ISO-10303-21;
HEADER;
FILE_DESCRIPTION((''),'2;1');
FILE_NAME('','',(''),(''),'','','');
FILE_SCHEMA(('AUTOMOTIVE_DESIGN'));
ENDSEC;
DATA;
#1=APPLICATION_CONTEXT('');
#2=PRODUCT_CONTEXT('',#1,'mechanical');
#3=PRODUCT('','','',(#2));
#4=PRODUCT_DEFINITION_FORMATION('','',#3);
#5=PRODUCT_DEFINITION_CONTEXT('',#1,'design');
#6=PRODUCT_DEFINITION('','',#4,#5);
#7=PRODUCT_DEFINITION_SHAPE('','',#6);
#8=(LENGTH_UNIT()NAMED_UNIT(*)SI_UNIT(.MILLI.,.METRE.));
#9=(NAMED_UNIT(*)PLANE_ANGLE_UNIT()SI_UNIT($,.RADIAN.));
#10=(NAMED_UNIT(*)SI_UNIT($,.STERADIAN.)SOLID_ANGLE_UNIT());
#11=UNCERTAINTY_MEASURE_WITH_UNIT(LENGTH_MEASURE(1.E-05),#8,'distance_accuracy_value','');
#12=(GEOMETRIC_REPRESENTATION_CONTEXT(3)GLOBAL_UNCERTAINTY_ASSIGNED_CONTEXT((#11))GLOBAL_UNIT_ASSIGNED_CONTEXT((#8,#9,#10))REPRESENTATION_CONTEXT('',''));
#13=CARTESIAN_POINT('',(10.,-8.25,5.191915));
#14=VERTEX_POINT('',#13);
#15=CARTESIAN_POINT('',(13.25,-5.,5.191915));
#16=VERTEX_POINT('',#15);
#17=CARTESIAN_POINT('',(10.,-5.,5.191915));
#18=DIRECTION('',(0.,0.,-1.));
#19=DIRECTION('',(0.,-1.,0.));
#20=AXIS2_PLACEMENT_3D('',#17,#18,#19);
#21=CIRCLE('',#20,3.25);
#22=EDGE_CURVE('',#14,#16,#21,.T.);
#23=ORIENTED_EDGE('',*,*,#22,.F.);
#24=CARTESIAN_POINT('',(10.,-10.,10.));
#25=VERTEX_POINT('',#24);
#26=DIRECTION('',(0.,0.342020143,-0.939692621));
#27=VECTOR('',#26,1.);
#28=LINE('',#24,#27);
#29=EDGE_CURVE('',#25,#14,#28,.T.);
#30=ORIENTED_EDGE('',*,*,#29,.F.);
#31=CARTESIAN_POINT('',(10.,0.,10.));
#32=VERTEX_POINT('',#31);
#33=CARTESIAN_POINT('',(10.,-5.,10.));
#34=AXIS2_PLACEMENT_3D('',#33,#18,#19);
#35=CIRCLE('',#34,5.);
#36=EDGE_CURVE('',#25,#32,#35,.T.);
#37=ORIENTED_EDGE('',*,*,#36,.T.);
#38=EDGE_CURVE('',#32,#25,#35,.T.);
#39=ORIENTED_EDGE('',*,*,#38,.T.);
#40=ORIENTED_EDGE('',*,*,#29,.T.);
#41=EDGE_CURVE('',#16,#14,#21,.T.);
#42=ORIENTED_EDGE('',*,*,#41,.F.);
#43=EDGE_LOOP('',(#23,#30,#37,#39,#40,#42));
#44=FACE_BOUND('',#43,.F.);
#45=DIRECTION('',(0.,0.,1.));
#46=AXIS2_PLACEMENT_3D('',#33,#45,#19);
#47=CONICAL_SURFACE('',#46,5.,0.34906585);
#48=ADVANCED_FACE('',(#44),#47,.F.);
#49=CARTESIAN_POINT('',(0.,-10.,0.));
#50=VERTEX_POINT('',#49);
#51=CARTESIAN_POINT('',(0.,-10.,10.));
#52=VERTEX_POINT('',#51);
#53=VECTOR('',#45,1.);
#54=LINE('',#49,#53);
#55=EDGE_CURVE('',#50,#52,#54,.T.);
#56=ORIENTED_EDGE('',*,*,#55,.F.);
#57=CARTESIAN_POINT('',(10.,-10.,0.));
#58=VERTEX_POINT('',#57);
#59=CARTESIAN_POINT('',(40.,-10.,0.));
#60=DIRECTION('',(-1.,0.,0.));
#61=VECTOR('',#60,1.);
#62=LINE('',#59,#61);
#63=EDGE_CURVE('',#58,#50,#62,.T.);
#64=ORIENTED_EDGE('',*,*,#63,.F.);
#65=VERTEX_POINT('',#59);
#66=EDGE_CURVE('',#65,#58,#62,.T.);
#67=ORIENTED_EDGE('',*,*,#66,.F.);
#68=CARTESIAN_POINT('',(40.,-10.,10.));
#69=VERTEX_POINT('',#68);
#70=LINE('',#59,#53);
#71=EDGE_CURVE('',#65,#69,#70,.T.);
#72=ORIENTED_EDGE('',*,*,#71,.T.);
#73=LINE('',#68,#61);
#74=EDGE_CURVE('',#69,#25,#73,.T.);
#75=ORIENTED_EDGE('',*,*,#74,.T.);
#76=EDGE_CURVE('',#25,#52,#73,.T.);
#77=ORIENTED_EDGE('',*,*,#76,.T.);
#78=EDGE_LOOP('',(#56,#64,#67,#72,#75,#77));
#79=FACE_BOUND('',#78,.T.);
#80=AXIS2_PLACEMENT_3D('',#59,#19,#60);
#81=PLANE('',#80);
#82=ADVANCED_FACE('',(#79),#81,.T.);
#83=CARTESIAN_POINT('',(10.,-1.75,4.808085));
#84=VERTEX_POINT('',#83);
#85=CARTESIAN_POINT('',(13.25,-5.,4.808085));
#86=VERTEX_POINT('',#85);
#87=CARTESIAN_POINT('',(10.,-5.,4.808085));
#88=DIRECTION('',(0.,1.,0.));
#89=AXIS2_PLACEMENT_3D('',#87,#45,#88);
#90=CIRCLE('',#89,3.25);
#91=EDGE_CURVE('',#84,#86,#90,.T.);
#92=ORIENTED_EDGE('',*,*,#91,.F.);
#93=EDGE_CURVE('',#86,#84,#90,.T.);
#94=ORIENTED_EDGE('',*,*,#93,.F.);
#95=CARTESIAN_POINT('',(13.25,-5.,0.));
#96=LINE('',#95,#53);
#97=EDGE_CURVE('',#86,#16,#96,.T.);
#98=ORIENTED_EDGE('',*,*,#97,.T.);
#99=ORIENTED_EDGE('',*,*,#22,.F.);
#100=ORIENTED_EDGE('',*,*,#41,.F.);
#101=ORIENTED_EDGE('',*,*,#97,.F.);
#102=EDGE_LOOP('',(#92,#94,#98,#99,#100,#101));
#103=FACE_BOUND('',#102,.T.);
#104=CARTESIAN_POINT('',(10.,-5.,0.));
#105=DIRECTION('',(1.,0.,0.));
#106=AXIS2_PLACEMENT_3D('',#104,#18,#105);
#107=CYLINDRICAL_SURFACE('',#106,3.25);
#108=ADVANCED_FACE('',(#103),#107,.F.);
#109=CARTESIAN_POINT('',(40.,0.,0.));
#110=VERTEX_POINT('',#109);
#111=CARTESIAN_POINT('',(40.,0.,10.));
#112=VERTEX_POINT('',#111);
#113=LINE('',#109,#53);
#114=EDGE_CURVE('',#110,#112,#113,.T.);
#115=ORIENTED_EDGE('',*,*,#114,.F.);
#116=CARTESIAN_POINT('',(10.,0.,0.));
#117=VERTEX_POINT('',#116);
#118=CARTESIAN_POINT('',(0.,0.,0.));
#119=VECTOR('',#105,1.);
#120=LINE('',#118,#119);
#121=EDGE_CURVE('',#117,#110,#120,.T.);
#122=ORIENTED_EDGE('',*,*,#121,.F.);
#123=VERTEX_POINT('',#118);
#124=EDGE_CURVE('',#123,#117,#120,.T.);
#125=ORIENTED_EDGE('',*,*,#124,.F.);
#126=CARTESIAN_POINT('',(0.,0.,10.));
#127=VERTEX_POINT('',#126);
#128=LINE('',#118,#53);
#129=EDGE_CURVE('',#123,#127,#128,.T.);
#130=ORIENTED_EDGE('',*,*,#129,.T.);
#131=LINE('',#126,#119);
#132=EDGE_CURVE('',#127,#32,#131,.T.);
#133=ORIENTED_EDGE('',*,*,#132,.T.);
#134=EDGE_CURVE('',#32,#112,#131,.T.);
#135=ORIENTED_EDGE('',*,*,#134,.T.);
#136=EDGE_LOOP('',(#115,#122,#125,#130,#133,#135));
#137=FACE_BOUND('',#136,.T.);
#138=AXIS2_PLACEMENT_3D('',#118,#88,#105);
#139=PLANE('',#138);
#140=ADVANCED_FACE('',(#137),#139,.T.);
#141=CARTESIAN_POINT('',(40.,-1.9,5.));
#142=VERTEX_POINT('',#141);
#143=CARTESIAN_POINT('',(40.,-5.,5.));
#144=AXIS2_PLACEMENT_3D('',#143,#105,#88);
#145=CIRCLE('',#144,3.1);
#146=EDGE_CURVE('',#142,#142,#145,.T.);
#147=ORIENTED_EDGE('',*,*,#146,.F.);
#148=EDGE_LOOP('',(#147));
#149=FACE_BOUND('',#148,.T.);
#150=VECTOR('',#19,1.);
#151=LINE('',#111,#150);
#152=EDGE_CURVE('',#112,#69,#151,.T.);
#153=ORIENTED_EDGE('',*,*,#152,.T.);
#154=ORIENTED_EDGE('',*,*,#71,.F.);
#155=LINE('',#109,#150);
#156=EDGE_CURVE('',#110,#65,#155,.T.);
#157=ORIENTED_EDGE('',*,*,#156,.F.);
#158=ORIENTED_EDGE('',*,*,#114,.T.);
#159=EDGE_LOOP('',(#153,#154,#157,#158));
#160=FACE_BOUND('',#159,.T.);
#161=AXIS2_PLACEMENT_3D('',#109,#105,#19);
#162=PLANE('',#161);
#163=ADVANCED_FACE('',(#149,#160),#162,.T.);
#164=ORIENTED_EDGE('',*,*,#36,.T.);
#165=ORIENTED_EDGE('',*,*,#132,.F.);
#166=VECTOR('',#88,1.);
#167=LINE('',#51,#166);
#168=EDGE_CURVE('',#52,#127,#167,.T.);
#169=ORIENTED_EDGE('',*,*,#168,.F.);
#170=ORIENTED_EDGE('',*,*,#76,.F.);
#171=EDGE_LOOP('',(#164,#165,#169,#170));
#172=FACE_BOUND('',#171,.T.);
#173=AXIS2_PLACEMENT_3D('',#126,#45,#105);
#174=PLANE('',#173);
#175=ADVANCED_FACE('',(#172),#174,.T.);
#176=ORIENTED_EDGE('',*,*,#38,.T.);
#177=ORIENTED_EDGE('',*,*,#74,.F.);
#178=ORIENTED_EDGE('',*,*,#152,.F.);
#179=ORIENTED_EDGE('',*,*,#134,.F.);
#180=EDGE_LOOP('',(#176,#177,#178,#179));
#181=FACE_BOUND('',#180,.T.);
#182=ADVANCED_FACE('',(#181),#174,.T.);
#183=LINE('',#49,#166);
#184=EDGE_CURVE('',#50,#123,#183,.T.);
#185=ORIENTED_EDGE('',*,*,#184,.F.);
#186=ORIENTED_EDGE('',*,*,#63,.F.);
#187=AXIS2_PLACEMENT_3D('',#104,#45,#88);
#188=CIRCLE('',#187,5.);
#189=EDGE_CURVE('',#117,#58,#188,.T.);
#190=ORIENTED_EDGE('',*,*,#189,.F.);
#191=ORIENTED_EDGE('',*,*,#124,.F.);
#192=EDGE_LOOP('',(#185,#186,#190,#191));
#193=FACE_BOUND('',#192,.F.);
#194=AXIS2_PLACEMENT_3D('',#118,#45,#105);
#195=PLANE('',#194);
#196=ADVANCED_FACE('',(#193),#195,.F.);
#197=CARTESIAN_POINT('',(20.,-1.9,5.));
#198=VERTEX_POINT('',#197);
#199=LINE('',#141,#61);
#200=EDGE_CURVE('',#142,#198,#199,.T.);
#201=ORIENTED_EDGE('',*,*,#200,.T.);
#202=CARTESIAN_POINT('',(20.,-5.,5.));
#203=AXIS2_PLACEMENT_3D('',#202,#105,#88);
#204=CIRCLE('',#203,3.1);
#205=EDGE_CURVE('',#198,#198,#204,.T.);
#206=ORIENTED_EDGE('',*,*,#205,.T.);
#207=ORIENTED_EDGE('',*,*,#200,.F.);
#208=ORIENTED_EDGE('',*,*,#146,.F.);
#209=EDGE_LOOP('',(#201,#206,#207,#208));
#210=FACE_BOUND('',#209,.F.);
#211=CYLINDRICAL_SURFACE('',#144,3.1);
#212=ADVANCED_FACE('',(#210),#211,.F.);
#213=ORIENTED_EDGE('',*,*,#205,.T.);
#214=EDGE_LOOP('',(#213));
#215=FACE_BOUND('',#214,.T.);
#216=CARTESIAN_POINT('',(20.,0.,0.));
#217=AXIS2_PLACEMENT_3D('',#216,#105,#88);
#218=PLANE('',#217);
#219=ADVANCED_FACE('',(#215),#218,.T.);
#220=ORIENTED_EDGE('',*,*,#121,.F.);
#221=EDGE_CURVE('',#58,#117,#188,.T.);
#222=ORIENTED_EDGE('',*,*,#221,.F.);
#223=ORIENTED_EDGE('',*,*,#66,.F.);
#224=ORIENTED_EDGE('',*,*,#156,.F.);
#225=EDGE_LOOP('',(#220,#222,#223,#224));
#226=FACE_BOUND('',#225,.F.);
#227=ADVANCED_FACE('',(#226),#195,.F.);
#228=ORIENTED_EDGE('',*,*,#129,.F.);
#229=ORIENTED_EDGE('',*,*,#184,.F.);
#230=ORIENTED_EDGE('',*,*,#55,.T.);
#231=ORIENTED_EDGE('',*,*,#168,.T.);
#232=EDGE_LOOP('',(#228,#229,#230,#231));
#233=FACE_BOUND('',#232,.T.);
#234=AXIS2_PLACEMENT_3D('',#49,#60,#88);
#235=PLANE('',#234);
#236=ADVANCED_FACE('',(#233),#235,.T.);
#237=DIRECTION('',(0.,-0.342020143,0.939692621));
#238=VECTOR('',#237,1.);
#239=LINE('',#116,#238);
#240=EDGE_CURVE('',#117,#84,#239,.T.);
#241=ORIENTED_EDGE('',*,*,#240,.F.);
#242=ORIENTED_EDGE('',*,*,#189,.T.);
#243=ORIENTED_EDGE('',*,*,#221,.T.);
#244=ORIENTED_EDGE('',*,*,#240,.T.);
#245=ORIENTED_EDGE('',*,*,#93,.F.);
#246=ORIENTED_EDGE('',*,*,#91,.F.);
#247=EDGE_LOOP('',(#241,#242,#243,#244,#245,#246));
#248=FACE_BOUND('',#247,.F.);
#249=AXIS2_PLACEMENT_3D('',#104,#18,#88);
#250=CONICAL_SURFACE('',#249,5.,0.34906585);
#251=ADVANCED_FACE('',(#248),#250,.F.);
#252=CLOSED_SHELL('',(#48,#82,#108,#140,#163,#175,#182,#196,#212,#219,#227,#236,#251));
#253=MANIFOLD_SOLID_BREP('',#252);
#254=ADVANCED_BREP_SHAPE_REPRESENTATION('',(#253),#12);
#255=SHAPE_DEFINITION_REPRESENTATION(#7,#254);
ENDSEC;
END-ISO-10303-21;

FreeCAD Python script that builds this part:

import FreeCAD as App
import Part
import Sketcher

doc = App.newDocument("Part")
body = doc.addObject("PartDesign::Body", "Body")

sketch1 = doc.addObject("Sketcher::SketchObject", "Sketch")
body.addObject(sketch1)
sketch1.AttachmentSupport = (doc.XY_Plane, [""])
sketch1.MapMode = "FlatFace"
sketch1.addGeometry([
    Part.LineSegment(App.Vector(40, 0, 0), App.Vector(0, 0, 0)),
    Part.LineSegment(App.Vector(0, 0, 0), App.Vector(0, -10, 0)),
    Part.LineSegment(App.Vector(0, -10, 0), App.Vector(40, -10, 0)),
    Part.LineSegment(App.Vector(40, -10, 0), App.Vector(40, 0, 0)),
    Part.Circle(App.Vector(10, -5, 0), App.Vector(0, 0, 1), 3.2),
], False)
sketch1.addConstraint([
    Sketcher.Constraint("Coincident", 0, 2, 1, 1),
    Sketcher.Constraint("Coincident", 1, 2, 2, 1),
    Sketcher.Constraint("Coincident", 2, 2, 3, 1),
    Sketcher.Constraint("Coincident", 3, 2, 0, 1),
    Sketcher.Constraint("Horizontal", 0),
    Sketcher.Constraint("Vertical", 1),
    Sketcher.Constraint("Horizontal", 2),
    Sketcher.Constraint("Vertical", 3),
    Sketcher.Constraint("Coincident", 0, 2, -1, 1),
    Sketcher.Constraint("Diameter", 4, 6.5),
    Sketcher.Constraint("DistanceX", 0, 2, 0, 1, 40.0),
    Sketcher.Constraint("DistanceY", 1, 2, 1, 1, 10.0),
    Sketcher.Constraint("DistanceX", -1, 1, 4, 3, 10.0),
    Sketcher.Constraint("DistanceY", 4, 3, -1, 1, 5.0),
])
pad1 = doc.addObject("PartDesign::Pad", "Pad")
body.addObject(pad1)
pad1.Profile = sketch1
pad1.Length = 10

sketch2 = doc.addObject("Sketcher::SketchObject", "Sketch001")
body.addObject(sketch2)
sketch2.AttachmentSupport = (doc.YZ_Plane, [""])
sketch2.MapMode = "FlatFace"
sketch2.AttachmentOffset = App.Placement(App.Vector(0, 0, 40), App.Rotation())
sketch2.addGeometry(Part.Circle(App.Vector(-5, 5, 0), App.Vector(0, 0, 1), 3.1), False)
sketch2.addConstraint([
    Sketcher.Constraint("Diameter", 0, 6.2),
    Sketcher.Constraint("DistanceX", 0, 3, -1, 1, 5.0),
    Sketcher.Constraint("DistanceY", -1, 1, 0, 3, 5.0),
])
pocket1 = doc.addObject("PartDesign::Pocket", "Pocket")
body.addObject(pocket1)
pocket1.Profile = sketch2
pocket1.Length = 20

sketch3 = doc.addObject("Sketcher::SketchObject", "Sketch002")
body.addObject(sketch3)
sketch3.AttachmentSupport = (doc.XY_Plane, [""])
sketch3.MapMode = "FlatFace"
sketch3.AttachmentOffset = App.Placement(App.Vector(0, 0, 10), App.Rotation())
sketch3.addGeometry(Part.Circle(App.Vector(10, -5, 0), App.Vector(0, 0, 1), 3.2), False)
sketch3.addConstraint([
    Sketcher.Constraint("Diameter", 0, 6.5),
    Sketcher.Constraint("DistanceX", -1, 1, 0, 3, 10.0),
    Sketcher.Constraint("DistanceY", 0, 3, -1, 1, 5.0),
])
doc.recompute()
hole = doc.addObject("PartDesign::Hole", "Hole")
body.addObject(hole)
hole.Profile = sketch3
hole.ThreadType = "None"
hole.Diameter = 6.5
hole.DepthType = "Dimension"
hole.Depth = 73.51
hole.DrillPoint = "Angled"
hole.DrillPointAngle = 118
hole.HoleCutType = "Countersink"
hole.HoleCutDiameter = 10
hole.HoleCutCountersinkAngle = 40

sketch4 = doc.addObject("Sketcher::SketchObject", "Sketch003")
body.addObject(sketch4)
sketch4.AttachmentSupport = (doc.XY_Plane, [""])
sketch4.MapMode = "FlatFace"
sketch4.addGeometry(Part.Circle(App.Vector(10, -5, 0), App.Vector(0, 0, 1), 3.2), False)
sketch4.addConstraint([
    Sketcher.Constraint("Diameter", 0, 6.5),
    Sketcher.Constraint("DistanceX", -1, 1, 0, 3, 10.0),
    Sketcher.Constraint("DistanceY", 0, 3, -1, 1, 5.0),
])
doc.recompute()
hole2 = doc.addObject("PartDesign::Hole", "Hole001")
body.addObject(hole2)
hole2.Profile = sketch4
hole2.ThreadType = "None"
hole2.Diameter = 6.5
hole2.DepthType = "Dimension"
hole2.Depth = 73.51
hole2.DrillPoint = "Angled"
hole2.DrillPointAngle = 118
hole2.HoleCutType = "Countersink"
hole2.HoleCutDiameter = 10
hole2.HoleCutCountersinkAngle = 40
hole2.Reversed = True

doc.recompute()
